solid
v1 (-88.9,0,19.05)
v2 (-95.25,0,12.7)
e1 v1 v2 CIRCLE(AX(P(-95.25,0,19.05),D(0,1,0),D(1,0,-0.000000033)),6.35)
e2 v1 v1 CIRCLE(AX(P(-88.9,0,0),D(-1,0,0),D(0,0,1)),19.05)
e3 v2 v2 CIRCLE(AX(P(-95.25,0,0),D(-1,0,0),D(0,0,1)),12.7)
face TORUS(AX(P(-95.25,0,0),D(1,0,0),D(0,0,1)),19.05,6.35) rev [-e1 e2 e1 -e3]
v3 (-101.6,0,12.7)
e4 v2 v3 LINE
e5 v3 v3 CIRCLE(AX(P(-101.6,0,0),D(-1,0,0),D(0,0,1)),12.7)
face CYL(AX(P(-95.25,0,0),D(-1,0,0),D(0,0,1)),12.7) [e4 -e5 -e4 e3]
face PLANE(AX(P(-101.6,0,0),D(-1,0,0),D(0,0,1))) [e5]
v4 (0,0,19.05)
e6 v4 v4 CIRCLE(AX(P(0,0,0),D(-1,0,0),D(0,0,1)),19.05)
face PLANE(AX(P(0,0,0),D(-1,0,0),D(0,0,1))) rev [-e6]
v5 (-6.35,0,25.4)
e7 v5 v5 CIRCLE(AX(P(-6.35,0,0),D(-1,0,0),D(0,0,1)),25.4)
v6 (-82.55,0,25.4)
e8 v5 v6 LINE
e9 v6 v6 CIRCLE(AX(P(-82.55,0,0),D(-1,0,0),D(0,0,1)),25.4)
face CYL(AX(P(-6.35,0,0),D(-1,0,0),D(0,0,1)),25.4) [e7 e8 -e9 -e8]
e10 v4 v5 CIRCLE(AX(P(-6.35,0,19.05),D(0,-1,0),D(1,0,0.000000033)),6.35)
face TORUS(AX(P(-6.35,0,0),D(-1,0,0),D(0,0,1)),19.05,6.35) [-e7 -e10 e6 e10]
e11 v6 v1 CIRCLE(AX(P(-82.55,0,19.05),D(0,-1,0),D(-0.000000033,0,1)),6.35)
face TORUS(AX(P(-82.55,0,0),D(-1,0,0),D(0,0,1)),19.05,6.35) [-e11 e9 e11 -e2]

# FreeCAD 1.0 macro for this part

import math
import FreeCAD as App
import Part
import Sketcher
Q = App.Units.Quantity

doc = App.newDocument("Part")
body = doc.addObject("PartDesign::Body", "Body")

sketch1 = body.newObject("Sketcher::SketchObject", "Sketch")
sketch1.AttachmentSupport = (doc.getObject("XZ_Plane"), [""])
sketch1.MapMode = "FlatFace"
sketch1.addGeometry([
    Part.LineSegment(App.Vector(-101.6, 0, 0), App.Vector(0, 0, 0)),
    Part.LineSegment(App.Vector(0, 0, 0), App.Vector(0, 19.05, 0)),
    Part.ArcOfCircle(Part.Circle(App.Vector(-6.35, 19.05, 0), App.Vector(0, 0, 1), 6.35), math.radians(0.000002), math.radians(89.999998)),
    Part.LineSegment(App.Vector(-6.35, 25.4, 0), App.Vector(-82.55, 25.4, 0)),
    Part.ArcOfCircle(Part.Circle(App.Vector(-82.55, 19.05, 0), App.Vector(0, 0, 1), 6.35), math.radians(90.000002), math.radians(179.999998)),
    Part.ArcOfCircle(Part.Circle(App.Vector(-95.25, 19.05, 0), App.Vector(0, 0, 1), 6.35), math.radians(-89.999998), math.radians(-0.000002)),
    Part.LineSegment(App.Vector(-95.25, 12.7, 0), App.Vector(-101.6, 12.7, 0)),
    Part.LineSegment(App.Vector(-101.6, 12.7, 0), App.Vector(-101.6, 0, 0)),
], False)
sketch1.addConstraint([
    Sketcher.Constraint("Coincident", 0, 2, 1, 1),
    Sketcher.Constraint("Tangent", 1, 2, 2, 1),
    Sketcher.Constraint("Tangent", 2, 2, 3, 1),
    Sketcher.Constraint("Tangent", 3, 2, 4, 1),
    Sketcher.Constraint("Tangent", 4, 2, 5, 2),
    Sketcher.Constraint("Tangent", 5, 1, 6, 1),
    Sketcher.Constraint("Coincident", 6, 2, 7, 1),
    Sketcher.Constraint("Coincident", 7, 2, 0, 1),
    Sketcher.Constraint("Horizontal", 0),
    Sketcher.Constraint("Vertical", 1),
    Sketcher.Constraint("Horizontal", 3),
    Sketcher.Constraint("Horizontal", 6),
    Sketcher.Constraint("Vertical", 7),
    Sketcher.Constraint("Coincident", 0, 2, -1, 1),
    Sketcher.Constraint("Equal", 2, 4),
    Sketcher.Constraint("Equal", 4, 5),
    Sketcher.Constraint("Horizontal", 4, 3, 5, 3),
    Sketcher.Constraint("DistanceX", 0, 1, 0, 2, Q("4 in")),
    Sketcher.Constraint("DistanceX", 3, 2, 3, 1, Q("3 in")),
    Sketcher.Constraint("Radius", 2, Q("0.25 in")),
    Sketcher.Constraint("DistanceY", 7, 2, 7, 1, Q("0.5 in")),
])
revolution = body.newObject("PartDesign::Revolution", "Revolution")
revolution.Profile = sketch1
revolution.ReferenceAxis = (sketch1, ["H_Axis"])
revolution.Angle = 360

doc.recompute()
